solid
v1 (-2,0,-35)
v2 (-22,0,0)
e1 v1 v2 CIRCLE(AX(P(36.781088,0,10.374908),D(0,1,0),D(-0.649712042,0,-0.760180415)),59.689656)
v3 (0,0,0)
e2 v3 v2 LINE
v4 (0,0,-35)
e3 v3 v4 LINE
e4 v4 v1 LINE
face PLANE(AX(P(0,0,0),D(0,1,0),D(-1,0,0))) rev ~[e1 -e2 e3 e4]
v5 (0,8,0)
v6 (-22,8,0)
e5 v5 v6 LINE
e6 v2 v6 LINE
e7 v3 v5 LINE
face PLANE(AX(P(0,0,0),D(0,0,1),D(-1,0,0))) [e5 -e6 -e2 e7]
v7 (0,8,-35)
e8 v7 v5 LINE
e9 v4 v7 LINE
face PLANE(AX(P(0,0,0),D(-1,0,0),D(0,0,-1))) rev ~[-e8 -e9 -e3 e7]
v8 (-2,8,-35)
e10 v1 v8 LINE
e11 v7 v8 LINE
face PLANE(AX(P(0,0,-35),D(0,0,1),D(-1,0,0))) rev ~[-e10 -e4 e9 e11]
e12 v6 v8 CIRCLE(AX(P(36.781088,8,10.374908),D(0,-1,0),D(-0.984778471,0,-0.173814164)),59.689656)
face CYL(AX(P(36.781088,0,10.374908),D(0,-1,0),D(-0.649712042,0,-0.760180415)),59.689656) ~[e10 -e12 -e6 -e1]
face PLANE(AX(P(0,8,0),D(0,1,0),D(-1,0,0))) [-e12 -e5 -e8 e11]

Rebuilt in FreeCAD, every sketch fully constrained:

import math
import FreeCAD as App
import Part
import Sketcher

doc = App.newDocument("Part")
body = doc.addObject("PartDesign::Body", "Body")

sketch1 = body.newObject("Sketcher::SketchObject", "Sketch")
sketch1.AttachmentSupport = (doc.getObject("XZ_Plane"), [""])
sketch1.MapMode = "FlatFace"
sketch1.addGeometry([
    Part.LineSegment(App.Vector(-22, 0, 0), App.Vector(0, 0, 0)),
    Part.LineSegment(App.Vector(0, 0, 0), App.Vector(0, -35, 0)),
    Part.LineSegment(App.Vector(0, -35, 0), App.Vector(-2, -35, 0)),
    Part.ArcOfCircle(Part.Circle(App.Vector(36.8, 10.4, 0), App.Vector(0, 0, 1), 59.7), math.radians(-170), math.radians(-131)),
], False)
sketch1.addConstraint([
    Sketcher.Constraint("Coincident", 0, 2, 1, 1),
    Sketcher.Constraint("Coincident", 1, 2, 2, 1),
    Sketcher.Constraint("Coincident", 2, 2, 3, 2),
    Sketcher.Constraint("Coincident", 3, 1, 0, 1),
    Sketcher.Constraint("Horizontal", 0),
    Sketcher.Constraint("Vertical", 1),
    Sketcher.Constraint("Horizontal", 2),
    Sketcher.Constraint("Coincident", 0, 2, -1, 1),
    Sketcher.Constraint("DistanceX", 0, 1, 0, 2, 22.0),
    Sketcher.Constraint("DistanceX", 2, 2, 2, 1, 2.0),
    Sketcher.Constraint("DistanceY", 1, 2, 1, 1, 35.0),
    Sketcher.Constraint("Radius", 3, 59.6898),
])
pad1 = body.newObject("PartDesign::Pad", "Pad")
pad1.Profile = sketch1
pad1.Length = 8
pad1.Reversed = True

doc.recompute()
